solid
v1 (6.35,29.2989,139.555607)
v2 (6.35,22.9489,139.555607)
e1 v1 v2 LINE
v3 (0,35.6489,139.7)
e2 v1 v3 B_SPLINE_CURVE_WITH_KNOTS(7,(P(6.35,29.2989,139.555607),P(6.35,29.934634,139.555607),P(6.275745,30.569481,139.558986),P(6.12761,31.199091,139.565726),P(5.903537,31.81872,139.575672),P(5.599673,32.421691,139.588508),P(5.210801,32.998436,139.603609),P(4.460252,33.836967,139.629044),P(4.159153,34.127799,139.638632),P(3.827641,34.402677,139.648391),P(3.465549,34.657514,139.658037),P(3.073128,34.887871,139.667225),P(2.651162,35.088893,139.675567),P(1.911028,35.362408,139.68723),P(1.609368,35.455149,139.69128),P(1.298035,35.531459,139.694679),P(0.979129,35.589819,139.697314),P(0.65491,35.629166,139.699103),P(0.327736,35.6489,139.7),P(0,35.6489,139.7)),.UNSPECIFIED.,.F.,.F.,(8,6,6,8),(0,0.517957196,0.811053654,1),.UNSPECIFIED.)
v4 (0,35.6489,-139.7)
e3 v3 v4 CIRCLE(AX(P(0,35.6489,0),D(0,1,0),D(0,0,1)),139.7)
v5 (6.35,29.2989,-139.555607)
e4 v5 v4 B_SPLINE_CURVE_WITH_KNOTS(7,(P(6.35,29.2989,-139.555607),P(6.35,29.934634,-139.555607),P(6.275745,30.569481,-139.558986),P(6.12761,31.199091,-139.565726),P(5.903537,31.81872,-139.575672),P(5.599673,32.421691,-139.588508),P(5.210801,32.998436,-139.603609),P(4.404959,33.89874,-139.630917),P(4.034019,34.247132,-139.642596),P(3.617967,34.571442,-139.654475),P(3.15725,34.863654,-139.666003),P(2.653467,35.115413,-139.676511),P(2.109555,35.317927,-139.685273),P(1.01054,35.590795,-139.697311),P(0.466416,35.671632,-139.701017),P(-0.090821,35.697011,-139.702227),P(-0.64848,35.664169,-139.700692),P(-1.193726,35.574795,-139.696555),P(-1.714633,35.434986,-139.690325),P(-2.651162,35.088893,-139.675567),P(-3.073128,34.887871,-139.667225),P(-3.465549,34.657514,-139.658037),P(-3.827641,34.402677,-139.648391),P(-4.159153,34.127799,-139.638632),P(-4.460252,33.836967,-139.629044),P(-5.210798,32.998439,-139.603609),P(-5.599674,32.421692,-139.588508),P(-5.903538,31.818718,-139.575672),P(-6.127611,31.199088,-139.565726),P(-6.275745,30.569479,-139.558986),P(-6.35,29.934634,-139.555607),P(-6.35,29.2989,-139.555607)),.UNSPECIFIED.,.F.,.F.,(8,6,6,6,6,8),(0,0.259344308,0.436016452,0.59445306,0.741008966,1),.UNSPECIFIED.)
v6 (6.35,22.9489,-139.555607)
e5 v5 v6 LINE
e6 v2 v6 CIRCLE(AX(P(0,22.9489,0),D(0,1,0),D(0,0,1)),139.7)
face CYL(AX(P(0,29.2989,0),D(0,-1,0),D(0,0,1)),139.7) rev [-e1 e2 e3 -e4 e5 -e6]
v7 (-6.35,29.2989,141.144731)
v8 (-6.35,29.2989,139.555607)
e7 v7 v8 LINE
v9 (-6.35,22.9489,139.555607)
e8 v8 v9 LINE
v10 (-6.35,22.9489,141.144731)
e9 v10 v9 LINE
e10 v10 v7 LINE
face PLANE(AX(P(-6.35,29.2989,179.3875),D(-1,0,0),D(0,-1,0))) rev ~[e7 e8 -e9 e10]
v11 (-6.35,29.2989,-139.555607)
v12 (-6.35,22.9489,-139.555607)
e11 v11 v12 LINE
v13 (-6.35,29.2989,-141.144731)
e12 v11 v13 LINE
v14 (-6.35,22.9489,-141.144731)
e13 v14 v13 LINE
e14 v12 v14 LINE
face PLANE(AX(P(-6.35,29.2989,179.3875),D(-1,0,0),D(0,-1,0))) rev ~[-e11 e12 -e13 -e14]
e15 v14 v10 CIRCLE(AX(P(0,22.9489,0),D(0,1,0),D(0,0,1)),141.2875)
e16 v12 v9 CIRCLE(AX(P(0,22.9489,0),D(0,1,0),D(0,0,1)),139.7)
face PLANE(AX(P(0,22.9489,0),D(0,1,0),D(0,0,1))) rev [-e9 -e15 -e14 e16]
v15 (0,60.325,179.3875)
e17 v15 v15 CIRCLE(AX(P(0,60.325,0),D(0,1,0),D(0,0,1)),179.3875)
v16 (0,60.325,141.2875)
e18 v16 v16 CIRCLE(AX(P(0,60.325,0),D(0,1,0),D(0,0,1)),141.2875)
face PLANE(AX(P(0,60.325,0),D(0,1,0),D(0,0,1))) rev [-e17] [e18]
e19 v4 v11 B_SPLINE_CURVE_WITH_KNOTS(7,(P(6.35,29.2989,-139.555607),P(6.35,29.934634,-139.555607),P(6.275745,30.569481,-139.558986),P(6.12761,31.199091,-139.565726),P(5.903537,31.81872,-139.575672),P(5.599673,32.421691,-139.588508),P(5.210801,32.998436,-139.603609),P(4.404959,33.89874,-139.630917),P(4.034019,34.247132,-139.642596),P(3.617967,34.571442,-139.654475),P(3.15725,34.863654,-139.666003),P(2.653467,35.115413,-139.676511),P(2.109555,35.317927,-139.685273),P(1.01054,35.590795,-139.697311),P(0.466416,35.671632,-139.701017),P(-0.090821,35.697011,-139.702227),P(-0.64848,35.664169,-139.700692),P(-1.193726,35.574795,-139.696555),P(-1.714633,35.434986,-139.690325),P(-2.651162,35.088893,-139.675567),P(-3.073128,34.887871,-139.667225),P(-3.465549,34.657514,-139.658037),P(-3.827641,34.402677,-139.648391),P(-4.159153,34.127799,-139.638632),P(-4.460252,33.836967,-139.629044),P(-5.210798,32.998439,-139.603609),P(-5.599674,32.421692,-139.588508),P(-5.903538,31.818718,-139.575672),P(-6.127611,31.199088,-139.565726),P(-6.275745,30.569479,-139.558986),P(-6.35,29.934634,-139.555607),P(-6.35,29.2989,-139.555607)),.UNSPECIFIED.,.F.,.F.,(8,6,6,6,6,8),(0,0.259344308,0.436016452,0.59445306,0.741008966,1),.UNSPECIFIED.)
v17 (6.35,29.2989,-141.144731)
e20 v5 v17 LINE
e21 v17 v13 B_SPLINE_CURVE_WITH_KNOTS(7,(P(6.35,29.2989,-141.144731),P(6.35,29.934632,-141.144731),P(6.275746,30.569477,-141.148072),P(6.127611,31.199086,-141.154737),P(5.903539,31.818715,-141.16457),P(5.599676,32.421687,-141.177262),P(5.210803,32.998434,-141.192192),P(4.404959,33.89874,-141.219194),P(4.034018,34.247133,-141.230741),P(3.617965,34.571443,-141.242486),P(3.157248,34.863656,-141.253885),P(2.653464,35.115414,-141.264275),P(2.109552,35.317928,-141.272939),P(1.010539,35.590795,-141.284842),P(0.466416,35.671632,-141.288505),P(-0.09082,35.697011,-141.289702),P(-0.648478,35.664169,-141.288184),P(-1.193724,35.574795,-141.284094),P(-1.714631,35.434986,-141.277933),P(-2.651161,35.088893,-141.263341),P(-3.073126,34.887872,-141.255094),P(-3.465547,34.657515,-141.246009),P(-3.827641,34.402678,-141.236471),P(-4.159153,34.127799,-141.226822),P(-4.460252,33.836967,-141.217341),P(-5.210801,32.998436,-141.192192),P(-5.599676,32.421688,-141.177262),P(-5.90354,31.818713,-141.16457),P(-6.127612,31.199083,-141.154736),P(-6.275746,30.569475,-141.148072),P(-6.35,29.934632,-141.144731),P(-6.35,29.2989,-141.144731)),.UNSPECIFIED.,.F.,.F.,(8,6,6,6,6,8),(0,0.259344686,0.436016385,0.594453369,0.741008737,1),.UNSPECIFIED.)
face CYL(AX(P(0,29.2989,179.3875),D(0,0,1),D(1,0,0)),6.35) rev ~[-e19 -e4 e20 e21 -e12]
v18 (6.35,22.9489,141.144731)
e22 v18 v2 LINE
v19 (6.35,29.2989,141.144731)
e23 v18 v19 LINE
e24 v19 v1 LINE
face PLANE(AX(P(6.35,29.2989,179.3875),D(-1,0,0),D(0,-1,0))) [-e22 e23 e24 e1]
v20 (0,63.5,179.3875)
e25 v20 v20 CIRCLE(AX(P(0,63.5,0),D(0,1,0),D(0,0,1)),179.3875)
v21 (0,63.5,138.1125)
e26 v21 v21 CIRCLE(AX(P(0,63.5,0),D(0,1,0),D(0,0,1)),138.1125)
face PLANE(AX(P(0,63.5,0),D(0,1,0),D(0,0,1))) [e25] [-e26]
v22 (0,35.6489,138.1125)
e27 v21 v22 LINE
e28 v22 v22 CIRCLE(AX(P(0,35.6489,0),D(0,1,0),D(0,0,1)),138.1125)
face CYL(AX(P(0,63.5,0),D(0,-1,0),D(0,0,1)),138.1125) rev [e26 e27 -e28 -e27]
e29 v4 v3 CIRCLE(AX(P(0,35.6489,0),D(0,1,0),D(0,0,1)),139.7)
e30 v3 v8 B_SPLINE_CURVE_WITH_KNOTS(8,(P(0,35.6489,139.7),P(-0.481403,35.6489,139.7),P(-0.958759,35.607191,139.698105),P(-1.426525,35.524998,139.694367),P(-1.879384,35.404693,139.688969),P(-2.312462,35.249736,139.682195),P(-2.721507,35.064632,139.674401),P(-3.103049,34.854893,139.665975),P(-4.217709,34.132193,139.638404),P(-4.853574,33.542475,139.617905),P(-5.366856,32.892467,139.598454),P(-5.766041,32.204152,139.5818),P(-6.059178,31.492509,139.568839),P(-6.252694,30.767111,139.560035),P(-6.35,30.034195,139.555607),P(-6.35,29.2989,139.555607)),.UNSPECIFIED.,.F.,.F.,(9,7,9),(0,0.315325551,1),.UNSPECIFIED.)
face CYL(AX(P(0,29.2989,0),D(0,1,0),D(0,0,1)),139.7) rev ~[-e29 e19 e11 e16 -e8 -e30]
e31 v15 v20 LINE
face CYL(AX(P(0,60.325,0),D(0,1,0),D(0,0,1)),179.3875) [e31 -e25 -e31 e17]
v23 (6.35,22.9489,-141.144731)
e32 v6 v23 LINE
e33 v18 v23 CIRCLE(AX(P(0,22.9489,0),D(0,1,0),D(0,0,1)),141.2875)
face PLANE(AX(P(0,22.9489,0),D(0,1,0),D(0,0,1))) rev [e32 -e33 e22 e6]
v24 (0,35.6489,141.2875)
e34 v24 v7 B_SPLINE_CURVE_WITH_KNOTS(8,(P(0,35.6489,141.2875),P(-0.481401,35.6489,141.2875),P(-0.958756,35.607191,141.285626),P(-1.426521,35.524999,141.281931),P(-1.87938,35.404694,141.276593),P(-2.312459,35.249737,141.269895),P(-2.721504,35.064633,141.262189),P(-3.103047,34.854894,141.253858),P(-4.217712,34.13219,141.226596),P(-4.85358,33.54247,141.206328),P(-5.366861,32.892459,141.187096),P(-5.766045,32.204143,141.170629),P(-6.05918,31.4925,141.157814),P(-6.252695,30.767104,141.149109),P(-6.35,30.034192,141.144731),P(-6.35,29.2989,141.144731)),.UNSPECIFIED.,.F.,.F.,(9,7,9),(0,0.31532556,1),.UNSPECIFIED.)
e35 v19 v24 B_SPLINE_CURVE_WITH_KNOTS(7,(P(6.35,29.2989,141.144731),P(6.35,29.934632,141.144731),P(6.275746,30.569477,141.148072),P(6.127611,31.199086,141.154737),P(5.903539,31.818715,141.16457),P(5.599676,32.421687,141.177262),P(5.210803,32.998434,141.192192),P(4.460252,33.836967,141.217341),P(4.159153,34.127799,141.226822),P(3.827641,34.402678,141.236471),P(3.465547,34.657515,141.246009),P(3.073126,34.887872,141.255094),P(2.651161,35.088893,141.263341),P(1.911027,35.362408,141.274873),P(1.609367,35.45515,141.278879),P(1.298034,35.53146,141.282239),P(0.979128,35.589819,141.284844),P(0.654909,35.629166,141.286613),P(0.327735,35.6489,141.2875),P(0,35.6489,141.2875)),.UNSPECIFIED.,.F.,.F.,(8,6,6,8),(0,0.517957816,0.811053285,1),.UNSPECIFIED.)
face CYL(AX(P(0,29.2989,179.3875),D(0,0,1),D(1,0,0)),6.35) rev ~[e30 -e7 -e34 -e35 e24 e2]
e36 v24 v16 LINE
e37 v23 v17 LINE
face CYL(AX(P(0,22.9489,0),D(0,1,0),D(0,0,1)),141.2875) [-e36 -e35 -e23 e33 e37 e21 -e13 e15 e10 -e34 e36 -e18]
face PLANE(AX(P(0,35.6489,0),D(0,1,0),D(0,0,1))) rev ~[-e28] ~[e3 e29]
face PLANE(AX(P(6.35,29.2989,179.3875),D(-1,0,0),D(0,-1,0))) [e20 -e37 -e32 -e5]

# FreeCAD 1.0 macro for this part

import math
import FreeCAD as App
import Part
import Sketcher
from FreeCAD import Vector
Q = App.Units.Quantity

doc = App.newDocument("Part")
body = doc.addObject("PartDesign::Body", "Body")

sketch1 = body.newObject("Sketcher::SketchObject", "Sketch")
sketch1.AttachmentSupport = (doc.getObject("YZ_Plane"), [""])
sketch1.MapMode = "FlatFace"
sketch1.addGeometry([
    Part.LineSegment(Vector(60.325, 141.2875, 0), Vector(22.9489, 141.2875, 0)),
    Part.LineSegment(Vector(22.9489, 141.2875, 0), Vector(22.9489, 139.7, 0)),
    Part.LineSegment(Vector(22.9489, 139.7, 0), Vector(35.6489, 139.7, 0)),
    Part.LineSegment(Vector(35.6489, 139.7, 0), Vector(35.6489, 138.1125, 0)),
    Part.LineSegment(Vector(35.6489, 138.1125, 0), Vector(63.5, 138.1125, 0)),
    Part.LineSegment(Vector(63.5, 138.1125, 0), Vector(63.5, 179.3875, 0)),
    Part.LineSegment(Vector(63.5, 179.3875, 0), Vector(60.325, 179.3875, 0)),
    Part.LineSegment(Vector(60.325, 179.3875, 0), Vector(60.325, 141.2875, 0)),
], False)
sketch1.addConstraint([
    Sketcher.Constraint("Coincident", 0, 2, 1, 1),
    Sketcher.Constraint("Coincident", 1, 2, 2, 1),
    Sketcher.Constraint("Coincident", 2, 2, 3, 1),
    Sketcher.Constraint("Coincident", 3, 2, 4, 1),
    Sketcher.Constraint("Coincident", 4, 2, 5, 1),
    Sketcher.Constraint("Coincident", 5, 2, 6, 1),
    Sketcher.Constraint("Coincident", 6, 2, 7, 1),
    Sketcher.Constraint("Coincident", 7, 2, 0, 1),
    Sketcher.Constraint("Horizontal", 0),
    Sketcher.Constraint("Vertical", 1),
    Sketcher.Constraint("Horizontal", 2),
    Sketcher.Constraint("Vertical", 3),
    Sketcher.Constraint("Horizontal", 4),
    Sketcher.Constraint("Vertical", 5),
    Sketcher.Constraint("Horizontal", 6),
    Sketcher.Constraint("Vertical", 7),
    Sketcher.Constraint("Equal", 1, 3),
    Sketcher.Constraint("DistanceY", 7, 2, 7, 1, Q("1.5 in")),
    Sketcher.Constraint("DistanceX", 6, 2, 6, 1, Q("0.125 in")),
    Sketcher.Constraint("DistanceY", 1, 2, 1, 1, Q("0.0625 in")),
    Sketcher.Constraint("DistanceX", 2, 1, 2, 2, Q("0.5 in")),
    Sketcher.Constraint("DistanceY", -1, 1, 3, 2, Q("5.4375 in")),
    Sketcher.Constraint("DistanceX", -1, 1, 4, 2, Q("2.5 in")),
    Sketcher.Constraint("DistanceX", 0, 2, 0, 1, Q("1.4715 in")),
])
revolution = body.newObject("PartDesign::Revolution", "Revolution")
revolution.Profile = sketch1
revolution.ReferenceAxis = (sketch1, ["H_Axis"])
revolution.Angle = 360

sketch2 = body.newObject("Sketcher::SketchObject", "Sketch001")
sketch2.AttachmentSupport = (doc.getObject("XY_Plane"), [""])
sketch2.MapMode = "FlatFace"
sketch2.AttachmentOffset = App.Placement(Vector(0, 0, 7.0625 * 25.4), App.Rotation())
sketch2.addGeometry([
    Part.LineSegment(Vector(6.35, 22.9489, 0), Vector(6.35, 29.2989, 0)),
    Part.ArcOfCircle(Part.Circle(Vector(0, 29.2989, 0), Vector(0, 0, 1), 6.35), math.radians(0), math.radians(180)),
    Part.LineSegment(Vector(-6.35, 29.2989, 0), Vector(-6.35, 22.9489, 0)),
    Part.LineSegment(Vector(-6.35, 22.9489, 0), Vector(6.35, 22.9489, 0)),
], False)
sketch2.addConstraint([
    Sketcher.Constraint("Tangent", 0, 2, 1, 1),
    Sketcher.Constraint("Tangent", 1, 2, 2, 1),
    Sketcher.Constraint("Coincident", 2, 2, 3, 1),
    Sketcher.Constraint("Coincident", 3, 2, 0, 1),
    Sketcher.Constraint("Vertical", 0),
    Sketcher.Constraint("Vertical", 2),
    Sketcher.Constraint("Horizontal", 3),
    Sketcher.Constraint("PointOnObject", 1, 3, -2),
    Sketcher.Constraint("Radius", 1, Q("0.25 in")),
    Sketcher.Constraint("DistanceY", 0, 1, 0, 2, Q("0.25 in")),
    Sketcher.Constraint("DistanceY", -1, 1, 1, 3, Q("1.1535 in")),
])
pocket1 = body.newObject("PartDesign::Pocket", "Pocket")
pocket1.Profile = sketch2
pocket1.Type = "ThroughAll"

doc.recompute()
